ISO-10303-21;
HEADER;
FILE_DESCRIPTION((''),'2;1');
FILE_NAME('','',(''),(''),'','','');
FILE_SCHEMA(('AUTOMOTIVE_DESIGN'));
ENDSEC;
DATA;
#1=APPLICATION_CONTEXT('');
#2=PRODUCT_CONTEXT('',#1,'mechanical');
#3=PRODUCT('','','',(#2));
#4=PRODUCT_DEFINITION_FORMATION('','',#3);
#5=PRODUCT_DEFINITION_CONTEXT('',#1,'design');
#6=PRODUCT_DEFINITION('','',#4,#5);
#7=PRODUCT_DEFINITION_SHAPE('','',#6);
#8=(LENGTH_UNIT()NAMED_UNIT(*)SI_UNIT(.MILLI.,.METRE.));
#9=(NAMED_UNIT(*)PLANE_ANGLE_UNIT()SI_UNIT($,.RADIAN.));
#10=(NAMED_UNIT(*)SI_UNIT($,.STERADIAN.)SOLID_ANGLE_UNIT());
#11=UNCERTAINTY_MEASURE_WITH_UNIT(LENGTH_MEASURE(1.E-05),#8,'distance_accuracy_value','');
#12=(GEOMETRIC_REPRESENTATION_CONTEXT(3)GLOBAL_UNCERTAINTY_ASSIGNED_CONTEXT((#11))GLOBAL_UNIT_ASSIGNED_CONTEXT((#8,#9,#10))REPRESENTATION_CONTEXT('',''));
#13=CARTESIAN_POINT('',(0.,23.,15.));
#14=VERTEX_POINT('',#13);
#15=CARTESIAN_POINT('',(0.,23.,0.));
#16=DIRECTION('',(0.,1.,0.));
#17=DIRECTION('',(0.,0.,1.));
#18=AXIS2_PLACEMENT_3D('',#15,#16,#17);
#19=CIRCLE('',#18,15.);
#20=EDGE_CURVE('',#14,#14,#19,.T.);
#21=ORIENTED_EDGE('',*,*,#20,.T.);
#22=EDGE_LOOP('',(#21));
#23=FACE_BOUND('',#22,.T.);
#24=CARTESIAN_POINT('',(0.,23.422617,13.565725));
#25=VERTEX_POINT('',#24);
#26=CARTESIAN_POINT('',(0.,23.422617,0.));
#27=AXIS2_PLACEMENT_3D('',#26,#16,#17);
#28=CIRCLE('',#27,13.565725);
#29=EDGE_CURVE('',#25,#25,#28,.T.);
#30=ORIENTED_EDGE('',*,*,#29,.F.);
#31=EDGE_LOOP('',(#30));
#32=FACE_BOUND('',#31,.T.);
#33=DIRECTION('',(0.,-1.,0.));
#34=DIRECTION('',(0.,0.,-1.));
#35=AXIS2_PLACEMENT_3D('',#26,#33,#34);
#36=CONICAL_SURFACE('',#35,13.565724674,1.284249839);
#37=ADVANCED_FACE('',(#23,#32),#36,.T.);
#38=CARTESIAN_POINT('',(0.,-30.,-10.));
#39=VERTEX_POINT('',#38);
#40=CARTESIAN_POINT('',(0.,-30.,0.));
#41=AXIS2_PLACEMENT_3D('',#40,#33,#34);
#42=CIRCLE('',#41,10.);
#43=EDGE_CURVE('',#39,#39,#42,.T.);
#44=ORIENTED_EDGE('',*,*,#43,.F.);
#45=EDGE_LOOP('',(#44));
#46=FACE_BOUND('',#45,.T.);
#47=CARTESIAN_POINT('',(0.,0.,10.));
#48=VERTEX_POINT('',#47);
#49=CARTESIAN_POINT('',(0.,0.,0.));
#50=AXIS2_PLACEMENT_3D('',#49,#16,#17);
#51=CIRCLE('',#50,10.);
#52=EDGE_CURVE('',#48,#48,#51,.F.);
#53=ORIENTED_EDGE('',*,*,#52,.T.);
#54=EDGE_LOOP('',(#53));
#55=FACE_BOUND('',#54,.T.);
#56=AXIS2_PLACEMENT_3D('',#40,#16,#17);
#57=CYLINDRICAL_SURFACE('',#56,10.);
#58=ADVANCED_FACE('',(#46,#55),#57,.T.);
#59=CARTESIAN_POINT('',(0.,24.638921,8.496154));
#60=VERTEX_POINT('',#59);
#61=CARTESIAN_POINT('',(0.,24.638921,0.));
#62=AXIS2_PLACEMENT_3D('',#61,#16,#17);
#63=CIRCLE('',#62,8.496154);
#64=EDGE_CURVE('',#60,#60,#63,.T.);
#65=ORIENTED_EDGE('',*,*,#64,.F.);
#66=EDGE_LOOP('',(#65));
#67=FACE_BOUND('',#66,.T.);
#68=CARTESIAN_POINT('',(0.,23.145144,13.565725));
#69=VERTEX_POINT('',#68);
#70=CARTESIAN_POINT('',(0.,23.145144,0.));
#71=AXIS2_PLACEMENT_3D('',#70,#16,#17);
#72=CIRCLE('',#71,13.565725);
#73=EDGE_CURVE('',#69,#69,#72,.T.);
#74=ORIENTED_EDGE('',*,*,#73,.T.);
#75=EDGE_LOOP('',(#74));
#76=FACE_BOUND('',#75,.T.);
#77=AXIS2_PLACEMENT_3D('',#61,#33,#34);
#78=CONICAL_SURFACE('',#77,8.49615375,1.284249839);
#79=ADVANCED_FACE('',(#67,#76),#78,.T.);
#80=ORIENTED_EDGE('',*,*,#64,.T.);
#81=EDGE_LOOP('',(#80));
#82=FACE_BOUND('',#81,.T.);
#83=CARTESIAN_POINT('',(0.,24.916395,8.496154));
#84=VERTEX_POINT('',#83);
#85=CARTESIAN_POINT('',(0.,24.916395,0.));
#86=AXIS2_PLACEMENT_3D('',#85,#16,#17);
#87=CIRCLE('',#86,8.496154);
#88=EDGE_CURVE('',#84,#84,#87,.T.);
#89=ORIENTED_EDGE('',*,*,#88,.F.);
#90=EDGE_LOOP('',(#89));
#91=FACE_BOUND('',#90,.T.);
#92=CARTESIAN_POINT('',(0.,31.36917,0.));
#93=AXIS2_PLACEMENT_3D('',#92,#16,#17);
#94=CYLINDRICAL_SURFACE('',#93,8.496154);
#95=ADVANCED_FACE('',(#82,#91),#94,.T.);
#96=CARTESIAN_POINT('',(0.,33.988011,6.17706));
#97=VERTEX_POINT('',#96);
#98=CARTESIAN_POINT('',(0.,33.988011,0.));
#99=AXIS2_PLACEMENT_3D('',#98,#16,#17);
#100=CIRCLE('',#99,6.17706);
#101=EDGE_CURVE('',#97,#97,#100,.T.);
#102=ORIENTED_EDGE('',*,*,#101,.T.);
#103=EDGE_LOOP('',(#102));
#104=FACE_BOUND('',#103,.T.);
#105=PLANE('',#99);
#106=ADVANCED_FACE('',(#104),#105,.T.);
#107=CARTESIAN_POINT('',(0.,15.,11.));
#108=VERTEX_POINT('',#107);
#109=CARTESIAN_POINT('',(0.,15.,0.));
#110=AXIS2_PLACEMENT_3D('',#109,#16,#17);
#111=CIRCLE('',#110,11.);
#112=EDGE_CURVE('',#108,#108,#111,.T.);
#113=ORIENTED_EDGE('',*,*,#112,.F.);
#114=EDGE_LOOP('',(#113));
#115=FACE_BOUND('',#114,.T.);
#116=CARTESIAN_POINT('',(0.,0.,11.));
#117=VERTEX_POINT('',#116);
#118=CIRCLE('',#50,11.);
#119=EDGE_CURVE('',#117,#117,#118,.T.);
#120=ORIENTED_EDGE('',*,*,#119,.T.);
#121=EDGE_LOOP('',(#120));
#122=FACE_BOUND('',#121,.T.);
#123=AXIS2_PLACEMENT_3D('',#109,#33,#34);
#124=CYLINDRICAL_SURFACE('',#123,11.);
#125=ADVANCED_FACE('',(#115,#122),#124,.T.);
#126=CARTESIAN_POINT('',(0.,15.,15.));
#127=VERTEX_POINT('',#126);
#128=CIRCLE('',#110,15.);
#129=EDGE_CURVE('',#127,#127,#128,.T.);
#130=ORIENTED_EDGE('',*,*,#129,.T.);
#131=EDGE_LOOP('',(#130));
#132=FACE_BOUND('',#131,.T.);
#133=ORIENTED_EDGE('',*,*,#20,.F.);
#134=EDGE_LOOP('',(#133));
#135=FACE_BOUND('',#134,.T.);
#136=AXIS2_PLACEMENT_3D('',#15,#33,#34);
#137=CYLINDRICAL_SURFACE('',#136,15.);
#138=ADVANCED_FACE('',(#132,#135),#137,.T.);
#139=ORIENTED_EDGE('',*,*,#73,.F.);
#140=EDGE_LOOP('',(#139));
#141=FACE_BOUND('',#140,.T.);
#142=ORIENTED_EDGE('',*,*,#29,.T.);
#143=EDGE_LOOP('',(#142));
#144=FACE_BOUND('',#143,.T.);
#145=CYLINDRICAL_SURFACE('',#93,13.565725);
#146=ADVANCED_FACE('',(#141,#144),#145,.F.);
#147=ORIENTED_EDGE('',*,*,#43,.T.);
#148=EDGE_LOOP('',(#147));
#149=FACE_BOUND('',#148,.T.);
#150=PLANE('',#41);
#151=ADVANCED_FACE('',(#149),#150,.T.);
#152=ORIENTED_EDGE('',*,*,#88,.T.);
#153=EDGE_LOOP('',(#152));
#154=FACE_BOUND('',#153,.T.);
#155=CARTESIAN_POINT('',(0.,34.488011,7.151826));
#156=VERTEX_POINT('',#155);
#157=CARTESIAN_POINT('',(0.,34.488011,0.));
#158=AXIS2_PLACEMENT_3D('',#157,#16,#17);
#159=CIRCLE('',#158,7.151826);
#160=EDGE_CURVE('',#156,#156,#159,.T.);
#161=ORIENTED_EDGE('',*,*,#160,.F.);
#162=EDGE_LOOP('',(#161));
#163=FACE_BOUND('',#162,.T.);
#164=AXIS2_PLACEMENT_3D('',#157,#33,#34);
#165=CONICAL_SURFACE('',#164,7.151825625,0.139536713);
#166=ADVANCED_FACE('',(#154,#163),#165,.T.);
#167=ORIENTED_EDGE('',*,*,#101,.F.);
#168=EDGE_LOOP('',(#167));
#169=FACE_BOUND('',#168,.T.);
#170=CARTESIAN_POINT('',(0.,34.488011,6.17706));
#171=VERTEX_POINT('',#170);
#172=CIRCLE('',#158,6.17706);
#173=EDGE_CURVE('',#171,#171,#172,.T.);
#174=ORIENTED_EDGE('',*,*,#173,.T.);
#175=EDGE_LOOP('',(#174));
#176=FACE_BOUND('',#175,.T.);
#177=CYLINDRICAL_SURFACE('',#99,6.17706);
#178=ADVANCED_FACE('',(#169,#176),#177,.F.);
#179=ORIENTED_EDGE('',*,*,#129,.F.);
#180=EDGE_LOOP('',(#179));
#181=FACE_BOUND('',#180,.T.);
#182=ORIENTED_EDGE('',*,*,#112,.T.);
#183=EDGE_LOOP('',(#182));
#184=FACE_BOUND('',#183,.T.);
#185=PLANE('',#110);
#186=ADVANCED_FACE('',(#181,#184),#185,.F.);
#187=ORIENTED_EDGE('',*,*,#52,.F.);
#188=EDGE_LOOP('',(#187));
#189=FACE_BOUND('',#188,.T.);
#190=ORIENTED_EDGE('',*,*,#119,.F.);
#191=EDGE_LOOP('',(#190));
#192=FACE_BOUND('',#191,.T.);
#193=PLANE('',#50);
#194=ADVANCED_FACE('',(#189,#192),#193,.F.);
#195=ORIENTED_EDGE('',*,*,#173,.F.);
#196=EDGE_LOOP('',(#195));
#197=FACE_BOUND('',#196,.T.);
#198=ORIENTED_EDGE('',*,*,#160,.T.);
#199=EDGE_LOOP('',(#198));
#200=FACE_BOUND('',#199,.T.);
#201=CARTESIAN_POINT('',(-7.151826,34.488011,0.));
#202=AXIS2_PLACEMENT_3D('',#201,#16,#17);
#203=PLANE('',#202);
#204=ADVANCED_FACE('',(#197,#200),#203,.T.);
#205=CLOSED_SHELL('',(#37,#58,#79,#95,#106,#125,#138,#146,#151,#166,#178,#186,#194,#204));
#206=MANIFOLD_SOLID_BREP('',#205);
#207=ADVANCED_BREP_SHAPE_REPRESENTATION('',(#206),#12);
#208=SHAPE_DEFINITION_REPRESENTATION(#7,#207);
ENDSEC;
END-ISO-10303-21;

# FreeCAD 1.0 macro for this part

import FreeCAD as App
import Part
import Sketcher
Q = App.Units.Quantity

doc = App.newDocument("Part")
body = doc.addObject("PartDesign::Body", "Body")

# Sketch on XZ plane
sketch1 = doc.addObject("Sketcher::SketchObject", "Sketch")
body.addObject(sketch1)
sketch1.AttachmentSupport = (doc.XZ_Plane, [""])
sketch1.MapMode = "FlatFace"
sketch1.addGeometry(Part.Circle(App.Vector(0, 0, 0), App.Vector(0, 0, 1), 11), False)
sketch1.addConstraint([
    Sketcher.Constraint("Coincident", 0, 3, -1, 1),
    Sketcher.Constraint("Diameter", 0, Q("22 mm")),
])
pad1 = doc.addObject("PartDesign::Pad", "Pad")
body.addObject(pad1)
pad1.Profile = sketch1
pad1.Length = 15
pad1.Reversed = True

# Sketch on XZ plane
sketch2 = doc.addObject("Sketcher::SketchObject", "Sketch001")
body.addObject(sketch2)
sketch2.AttachmentSupport = (doc.XZ_Plane, [""])
sketch2.MapMode = "FlatFace"
sketch2.AttachmentOffset = App.Placement(App.Vector(0, 0, -15), App.Rotation())
sketch2.addGeometry(Part.Circle(App.Vector(0, 0, 0), App.Vector(0, 0, 1), 15), False)
sketch2.addConstraint([
    Sketcher.Constraint("Coincident", 0, 3, -1, 1),
    Sketcher.Constraint("Diameter", 0, Q("30 mm")),
])
pad2 = doc.addObject("PartDesign::Pad", "Pad001")
body.addObject(pad2)
pad2.Profile = sketch2
pad2.Length = 8
pad2.Reversed = True

# Sketch on XY plane
sketch3 = doc.addObject("Sketcher::SketchObject", "Sketch002")
body.addObject(sketch3)
sketch3.AttachmentSupport = (doc.XY_Plane, [""])
sketch3.MapMode = "FlatFace"
sketch3.addGeometry([
    Part.LineSegment(App.Vector(-13.57, 23.42, 0), App.Vector(-15, 23, 0)),  # 0
    Part.LineSegment(App.Vector(-15, 23, 0), App.Vector(0, 23, 0)),  # 1
    Part.LineSegment(App.Vector(0, 23, 0), App.Vector(0, 34.49, 0)),  # 2
    Part.LineSegment(App.Vector(0, 34.49, 0), App.Vector(-7.15, 34.49, 0)),  # 3
    Part.LineSegment(App.Vector(-7.15, 34.49, 0), App.Vector(-8.5, 24.92, 0)),  # 4
    Part.LineSegment(App.Vector(-8.5, 24.92, 0), App.Vector(-8.5, 24.64, 0)),  # 5
    Part.LineSegment(App.Vector(-8.5, 24.64, 0), App.Vector(-13.57, 23.15, 0)),  # 6
    Part.LineSegment(App.Vector(-13.57, 23.15, 0), App.Vector(-13.57, 23.42, 0)),  # 7
], False)
sketch3.addConstraint([
    Sketcher.Constraint("Coincident", 0, 2, 1, 1),
    Sketcher.Constraint("Coincident", 1, 2, 2, 1),
    Sketcher.Constraint("Coincident", 2, 2, 3, 1),
    Sketcher.Constraint("Coincident", 3, 2, 4, 1),
    Sketcher.Constraint("Coincident", 4, 2, 5, 1),
    Sketcher.Constraint("Coincident", 5, 2, 6, 1),
    Sketcher.Constraint("Coincident", 6, 2, 7, 1),
    Sketcher.Constraint("Coincident", 7, 2, 0, 1),
    Sketcher.Constraint("Horizontal", 1),
    Sketcher.Constraint("Vertical", 2),
    Sketcher.Constraint("Horizontal", 3),
    Sketcher.Constraint("Vertical", 5),
    Sketcher.Constraint("Vertical", 7),
    Sketcher.Constraint("PointOnObject", 1, 2, -2),
    Sketcher.Constraint("Parallel", 0, 6),
    Sketcher.Constraint("Equal", 5, 7),
    Sketcher.Constraint("DistanceX", 1, 1, 1, 2, Q("15 mm")),
    Sketcher.Constraint("DistanceY", -1, 1, 0, 2, Q("23 mm")),
    Sketcher.Constraint("DistanceY", 2, 1, 2, 2, Q("11.488011 mm")),
    Sketcher.Constraint("DistanceX", 6, 2, 3, 2, Q("6.413899 mm")),
    Sketcher.Constraint("Distance", 4, Q("9.66556 mm")),
    Sketcher.Constraint("DistanceX", 3, 2, 3, 1, Q("7.151826 mm")),
    Sketcher.Constraint("DistanceY", 5, 2, 5, 1, Q("0.277473 mm")),
    Sketcher.Constraint("DistanceY", -1, 1, 5, 2, Q("24.638921 mm")),
])
revolution = doc.addObject("PartDesign::Revolution", "Revolution")
body.addObject(revolution)
revolution.Profile = sketch3
revolution.ReferenceAxis = (sketch3, ["V_Axis"])
revolution.Angle = 360

# Sketch on XZ plane
sketch4 = doc.addObject("Sketcher::SketchObject", "Sketch003")
body.addObject(sketch4)
sketch4.AttachmentSupport = (doc.XZ_Plane, [""])
sketch4.MapMode = "FlatFace"
sketch4.AttachmentOffset = App.Placement(App.Vector(0, 0, -34.488011), App.Rotation())
sketch4.addGeometry(Part.Circle(App.Vector(0, 0, 0), App.Vector(0, 0, 1), 6), False)
sketch4.addConstraint([
    Sketcher.Constraint("Coincident", 0, 3, -1, 1),
    Sketcher.Constraint("Diameter", 0, Q("12.35412 mm")),
])
pocket1 = doc.addObject("PartDesign::Pocket", "Pocket")
body.addObject(pocket1)
pocket1.Profile = sketch4
pocket1.Length = 0.5
pocket1.Reversed = True

# Sketch on XZ plane
sketch5 = doc.addObject("Sketcher::SketchObject", "Sketch004")
body.addObject(sketch5)
sketch5.AttachmentSupport = (doc.XZ_Plane, [""])
sketch5.MapMode = "FlatFace"
sketch5.addGeometry(Part.Circle(App.Vector(0, 0, 0), App.Vector(0, 0, 1), 10), False)
sketch5.addConstraint([
    Sketcher.Constraint("Coincident", 0, 3, -1, 1),
    Sketcher.Constraint("Diameter", 0, Q("20 mm")),
])
pad3 = doc.addObject("PartDesign::Pad", "Pad002")
body.addObject(pad3)
pad3.Profile = sketch5
pad3.Length = 30

doc.recompute()
